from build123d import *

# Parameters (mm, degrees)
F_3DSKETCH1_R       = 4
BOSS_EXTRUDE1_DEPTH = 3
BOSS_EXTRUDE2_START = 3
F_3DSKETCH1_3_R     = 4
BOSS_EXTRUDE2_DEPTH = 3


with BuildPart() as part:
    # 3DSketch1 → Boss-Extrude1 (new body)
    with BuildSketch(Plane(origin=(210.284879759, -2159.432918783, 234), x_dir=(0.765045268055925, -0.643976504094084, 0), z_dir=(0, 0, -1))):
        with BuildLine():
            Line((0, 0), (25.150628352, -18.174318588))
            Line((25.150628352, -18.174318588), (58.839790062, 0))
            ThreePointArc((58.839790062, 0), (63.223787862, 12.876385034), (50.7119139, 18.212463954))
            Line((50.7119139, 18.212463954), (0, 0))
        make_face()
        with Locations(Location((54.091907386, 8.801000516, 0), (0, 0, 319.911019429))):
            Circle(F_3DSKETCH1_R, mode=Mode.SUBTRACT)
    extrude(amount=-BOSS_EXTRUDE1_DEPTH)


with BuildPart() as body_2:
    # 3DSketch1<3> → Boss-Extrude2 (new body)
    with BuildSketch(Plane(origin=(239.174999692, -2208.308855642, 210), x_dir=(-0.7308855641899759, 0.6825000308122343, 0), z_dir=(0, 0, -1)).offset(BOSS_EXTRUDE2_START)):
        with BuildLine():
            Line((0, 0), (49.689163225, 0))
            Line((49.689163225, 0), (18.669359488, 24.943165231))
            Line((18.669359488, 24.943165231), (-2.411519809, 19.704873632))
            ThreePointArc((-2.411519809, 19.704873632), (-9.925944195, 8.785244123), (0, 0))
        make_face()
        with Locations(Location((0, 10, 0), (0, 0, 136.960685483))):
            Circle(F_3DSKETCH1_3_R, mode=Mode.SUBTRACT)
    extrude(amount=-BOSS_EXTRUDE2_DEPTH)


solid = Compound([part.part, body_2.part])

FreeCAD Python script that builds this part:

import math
import FreeCAD as App
import Part
import Sketcher
from FreeCAD import Vector
Q = App.Units.Quantity

doc = App.newDocument("Part")
params = doc.addObject("Spreadsheet::Sheet", "Params")
for row, (alias, value) in enumerate([
    ("sketch1_diameter", "8 mm"),
    ("sketch1_radius", "10 mm"),
    ("pad1_length", "3 mm"),
    ("sketch2_diameter", "8 mm"),
    ("sketch2_radius", "10 mm"),
    ("pad2_length", "3 mm"),
], start=1):
    params.set(f"A{row}", alias)
    params.set(f"B{row}", "=" + value)
    params.setAlias(f"B{row}", alias)

body = doc.addObject("PartDesign::Body", "Body")

# Sketch on XY plane
sketch1 = body.newObject("Sketcher::SketchObject", "Sketch")
sketch1.AttachmentSupport = (doc.getObject("XY_Plane"), [""])
sketch1.MapMode = "FlatFace"
sketch1.AttachmentOffset = App.Placement(Vector(0, 0, 234), App.Rotation())
sketch1.addGeometry([
    Part.LineSegment(Vector(210.3, -2159.4, 0), Vector(241.2, -2161.7, 0)),  # 0
    Part.LineSegment(Vector(241.2, -2161.7, 0), Vector(255.3, -2197.3, 0)),  # 1
    Part.ArcOfCircle(Part.Circle(Vector(246, -2201, 0), Vector(0, 0, 1), 10), math.radians(-150), math.radians(22)),  # 2
    Part.LineSegment(Vector(237.4, -2206, 0), Vector(210.3, -2159.4, 0)),  # 3
    Part.Circle(Vector(246, -2201, 0), Vector(0, 0, 1), 4),  # 4
], False)
sketch1.addConstraint([
    Sketcher.Constraint("Coincident", 0, 2, 1, 1),
    Sketcher.Constraint("Tangent", 1, 2, 2, 2),
    Sketcher.Constraint("Tangent", 2, 1, 3, 1),
    Sketcher.Constraint("Coincident", 3, 2, 0, 1),
    Sketcher.Constraint("Coincident", 4, 3, 2, 3),
    Sketcher.Constraint("Diameter", 4, Q("8 mm")),
    Sketcher.Constraint("Radius", 2, Q("10 mm")),
    Sketcher.Constraint("DistanceX", -1, 1, 2, 3, Q("246 mm")),
    Sketcher.Constraint("DistanceY", 2, 3, -1, 1, Q("2201 mm")),
    Sketcher.Constraint("DistanceX", 0, 2, 1, 2, Q("14.0699 mm")),
    Sketcher.Constraint("DistanceY", 2, 1, 1, 2, Q("8.699198 mm")),
    Sketcher.Constraint("DistanceY", 1, 2, -1, 1, Q("2197.324361 mm")),
    Sketcher.Constraint("DistanceX", -1, 1, 3, 2, Q("210.28488 mm")),
])
sketch1.setExpression("Constraints[5]", "Params.sketch1_diameter")
sketch1.setExpression("Constraints[6]", "Params.sketch1_radius")
pad1 = body.newObject("PartDesign::Pad", "Pad")
pad1.Profile = sketch1
pad1.setExpression("Length", "Params.pad1_length")
body2 = doc.addObject("PartDesign::Body", "Body001")

# Sketch on XY plane
sketch2 = body2.newObject("Sketcher::SketchObject", "Sketch001")
sketch2.AttachmentSupport = (doc.getObject("XY_Plane001"), [""])
sketch2.MapMode = "FlatFace"
sketch2.AttachmentOffset = App.Placement(Vector(0, 0, 207), App.Rotation())
sketch2.addGeometry([
    Part.LineSegment(Vector(239.2, -2208.3, 0), Vector(202.9, -2174.4, 0)),  # 0
    Part.LineSegment(Vector(202.9, -2174.4, 0), Vector(242.6, -2177.3, 0)),  # 1
    Part.LineSegment(Vector(242.6, -2177.3, 0), Vector(254.4, -2195.6, 0)),  # 2
    Part.ArcOfCircle(Part.Circle(Vector(246, -2201, 0), Vector(0, 0, 1), 10), math.radians(-133), math.radians(33)),  # 3
    Part.Circle(Vector(246, -2201, 0), Vector(0, 0, 1), 4),  # 4
], False)
sketch2.addConstraint([
    Sketcher.Constraint("Coincident", 0, 2, 1, 1),
    Sketcher.Constraint("Coincident", 1, 2, 2, 1),
    Sketcher.Constraint("Tangent", 2, 2, 3, 2),
    Sketcher.Constraint("Tangent", 3, 1, 0, 1),
    Sketcher.Constraint("Coincident", 4, 3, 3, 3),
    Sketcher.Constraint("Diameter", 4, Q("8 mm")),
    Sketcher.Constraint("Radius", 3, Q("10 mm")),
    Sketcher.Constraint("DistanceX", -1, 1, 3, 3, Q("246 mm")),
    Sketcher.Constraint("DistanceY", 3, 3, -1, 1, Q("2201 mm")),
    Sketcher.Constraint("DistanceY", 0, 2, -1, 1, Q("2174.396 mm")),
    Sketcher.Constraint("DistanceX", -1, 1, 3, 1, Q("239.175 mm")),
    Sketcher.Constraint("Distance", 2, Q("21.721951 mm")),
    Sketcher.Constraint("DistanceX", -1, 1, 2, 2, Q("254.386122 mm")),
])
sketch2.setExpression("Constraints[5]", "Params.sketch2_diameter")
sketch2.setExpression("Constraints[6]", "Params.sketch2_radius")
pad2 = body2.newObject("PartDesign::Pad", "Pad001")
pad2.Profile = sketch2
pad2.setExpression("Length", "Params.pad2_length")

doc.recompute()
